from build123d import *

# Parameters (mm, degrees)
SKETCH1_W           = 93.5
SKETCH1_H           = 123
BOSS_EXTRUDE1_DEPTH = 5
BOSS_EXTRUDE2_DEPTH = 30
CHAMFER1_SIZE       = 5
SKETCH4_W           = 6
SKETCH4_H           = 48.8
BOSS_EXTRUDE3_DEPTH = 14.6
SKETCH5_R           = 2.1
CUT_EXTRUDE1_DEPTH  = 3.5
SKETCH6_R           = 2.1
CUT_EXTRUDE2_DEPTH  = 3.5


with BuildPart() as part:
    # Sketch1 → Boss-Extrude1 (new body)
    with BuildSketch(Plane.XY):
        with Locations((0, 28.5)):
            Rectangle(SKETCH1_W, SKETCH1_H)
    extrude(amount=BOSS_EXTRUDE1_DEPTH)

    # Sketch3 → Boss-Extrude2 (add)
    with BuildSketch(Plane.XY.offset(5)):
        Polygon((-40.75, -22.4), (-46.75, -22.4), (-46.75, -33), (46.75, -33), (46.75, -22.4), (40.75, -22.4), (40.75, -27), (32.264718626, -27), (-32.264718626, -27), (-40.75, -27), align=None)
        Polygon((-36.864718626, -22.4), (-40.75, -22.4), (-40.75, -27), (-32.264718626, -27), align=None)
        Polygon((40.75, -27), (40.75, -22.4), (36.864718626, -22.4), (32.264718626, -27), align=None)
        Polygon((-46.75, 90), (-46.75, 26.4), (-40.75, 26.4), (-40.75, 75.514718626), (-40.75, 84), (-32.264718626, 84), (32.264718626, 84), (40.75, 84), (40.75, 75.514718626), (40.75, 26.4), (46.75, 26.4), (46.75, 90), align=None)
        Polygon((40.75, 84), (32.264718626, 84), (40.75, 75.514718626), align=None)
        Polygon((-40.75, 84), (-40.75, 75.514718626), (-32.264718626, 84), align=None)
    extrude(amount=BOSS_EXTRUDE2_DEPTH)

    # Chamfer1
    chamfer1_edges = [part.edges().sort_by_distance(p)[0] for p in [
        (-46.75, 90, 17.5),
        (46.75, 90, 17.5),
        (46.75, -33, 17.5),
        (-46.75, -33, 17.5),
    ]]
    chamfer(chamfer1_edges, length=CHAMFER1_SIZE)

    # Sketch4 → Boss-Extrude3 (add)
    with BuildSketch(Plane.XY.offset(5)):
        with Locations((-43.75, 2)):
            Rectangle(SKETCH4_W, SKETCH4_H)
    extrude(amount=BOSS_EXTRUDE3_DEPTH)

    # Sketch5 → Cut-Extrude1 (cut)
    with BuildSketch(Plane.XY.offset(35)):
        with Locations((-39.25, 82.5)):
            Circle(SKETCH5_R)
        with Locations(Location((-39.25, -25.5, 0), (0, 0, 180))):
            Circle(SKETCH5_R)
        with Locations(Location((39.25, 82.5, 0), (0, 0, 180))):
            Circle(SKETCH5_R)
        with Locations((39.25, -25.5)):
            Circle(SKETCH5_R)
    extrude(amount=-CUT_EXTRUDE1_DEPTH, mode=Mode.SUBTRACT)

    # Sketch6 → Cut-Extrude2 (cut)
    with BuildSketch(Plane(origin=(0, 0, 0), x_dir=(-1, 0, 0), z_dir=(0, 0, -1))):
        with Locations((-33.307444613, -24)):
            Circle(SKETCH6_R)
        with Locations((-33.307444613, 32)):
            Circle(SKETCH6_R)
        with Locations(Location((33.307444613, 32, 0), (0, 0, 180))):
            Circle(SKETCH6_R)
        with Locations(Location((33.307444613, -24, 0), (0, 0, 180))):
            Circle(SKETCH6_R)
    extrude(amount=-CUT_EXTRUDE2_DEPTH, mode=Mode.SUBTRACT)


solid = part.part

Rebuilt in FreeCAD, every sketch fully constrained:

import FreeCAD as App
import Part
import Sketcher

V = App.Vector
Q = App.Units.Quantity


def edges_at(feature, points):
    """Names of the edges that pass closest to the given points."""
    edges = feature.Shape.Edges
    near = lambda p: min(range(len(edges)), key=lambda i: edges[i].distToShape(Part.Vertex(*p))[0])
    return sorted({f"Edge{near(p) + 1}" for p in points})


def add_polygon(sketch, points):
    """Adds a closed chain of lines whose ends are joined by coincident constraints."""
    first, n = sketch.GeometryCount, len(points)
    for a, b in zip(points, points[1:] + points[:1]):
        sketch.addGeometry(Part.LineSegment(App.Vector(*a, 0), App.Vector(*b, 0)), False)
    for i in range(n):
        sketch.addConstraint(Sketcher.Constraint("Coincident", first + i, 2, first + (i + 1) % n, 1))

doc = App.newDocument("Part")
body = doc.addObject("PartDesign::Body", "Body")

sketch1 = doc.addObject("Sketcher::SketchObject", "Sketch")
body.addObject(sketch1)
sketch1.AttachmentSupport = (doc.XY_Plane, [""])
sketch1.MapMode = "FlatFace"
add_polygon(sketch1, [(-47, 90), (-47, -33), (47, -33), (47, 90)])
sketch1.addConstraint(Sketcher.Constraint("Vertical", 0))
sketch1.addConstraint(Sketcher.Constraint("Horizontal", 1))
sketch1.addConstraint(Sketcher.Constraint("Vertical", 2))
sketch1.addConstraint(Sketcher.Constraint("Horizontal", 3))
sketch1.addConstraint(Sketcher.Constraint("DistanceY", 0, 2, 0, 1, Q("123 mm")))
sketch1.addConstraint(Sketcher.Constraint("DistanceX", 1, 1, 1, 2, Q("93.5 mm")))
sketch1.addConstraint(Sketcher.Constraint("DistanceY", 0, 2, -1, 1, Q("33 mm")))
sketch1.addConstraint(Sketcher.Constraint("DistanceX", 0, 2, -1, 1, Q("46.75 mm")))
pad1 = doc.addObject("PartDesign::Pad", "Pad")
body.addObject(pad1)
pad1.Profile = sketch1
pad1.Length = 5

sketch2 = doc.addObject("Sketcher::SketchObject", "Sketch001")
body.addObject(sketch2)
sketch2.AttachmentSupport = (doc.XY_Plane, [""])
sketch2.MapMode = "FlatFace"
sketch2.AttachmentOffset = App.Placement(V(0, 0, 5), App.Rotation())
add_polygon(sketch2, [(-47, -22), (-47, -33), (47, -33), (47, -22), (37, -22), (32, -27), (-32, -27), (-37, -22)])
add_polygon(sketch2, [(-47, 90), (-47, 26), (-41, 26), (-41, 76), (-32, 84), (32, 84), (41, 76), (41, 26), (47, 26), (47, 90)])
sketch2.addConstraint(Sketcher.Constraint("Vertical", 0))
sketch2.addConstraint(Sketcher.Constraint("Horizontal", 1))
sketch2.addConstraint(Sketcher.Constraint("Vertical", 2))
sketch2.addConstraint(Sketcher.Constraint("Horizontal", 3))
sketch2.addConstraint(Sketcher.Constraint("Horizontal", 5))
sketch2.addConstraint(Sketcher.Constraint("Horizontal", 7))
sketch2.addConstraint(Sketcher.Constraint("Vertical", 8))
sketch2.addConstraint(Sketcher.Constraint("Horizontal", 9))
sketch2.addConstraint(Sketcher.Constraint("Vertical", 10))
sketch2.addConstraint(Sketcher.Constraint("Horizontal", 12))
sketch2.addConstraint(Sketcher.Constraint("Vertical", 14))
sketch2.addConstraint(Sketcher.Constraint("Horizontal", 15))
sketch2.addConstraint(Sketcher.Constraint("Vertical", 16))
sketch2.addConstraint(Sketcher.Constraint("Horizontal", 17))
sketch2.addConstraint(Sketcher.Constraint("Symmetric", 3, 2, 6, 2, -2))
sketch2.addConstraint(Sketcher.Constraint("Symmetric", 10, 2, 13, 2, -2))
sketch2.addConstraint(Sketcher.Constraint("Symmetric", 8, 2, 15, 2, -2))
sketch2.addConstraint(Sketcher.Constraint("Perpendicular", 4, 6))
sketch2.addConstraint(Sketcher.Constraint("Perpendicular", 6, 11))
sketch2.addConstraint(Sketcher.Constraint("Perpendicular", 11, 13))
sketch2.addConstraint(Sketcher.Constraint("Vertical", 7, 2, 8, 2))
sketch2.addConstraint(Sketcher.Constraint("Vertical", 5, 2, 11, 2))
sketch2.addConstraint(Sketcher.Constraint("Vertical", 4, 2, 12, 2))
sketch2.addConstraint(Sketcher.Constraint("Vertical", 2, 2, 15, 2))
sketch2.addConstraint(Sketcher.Constraint("DistanceX", 9, 1, 9, 2, Q("6 mm")))
sketch2.addConstraint(Sketcher.Constraint("Distance", 11, Q("12 mm")))
sketch2.addConstraint(Sketcher.Constraint("DistanceX", 1, 1, 1, 2, Q("93.5 mm")))
sketch2.addConstraint(Sketcher.Constraint("DistanceY", 0, 2, 0, 1, Q("10.6 mm")))
sketch2.addConstraint(Sketcher.Constraint("DistanceY", 8, 2, 8, 1, Q("63.6 mm")))
sketch2.addConstraint(Sketcher.Constraint("DistanceY", 0, 2, -1, 1, Q("33 mm")))
sketch2.addConstraint(Sketcher.Constraint("DistanceY", 4, 2, -1, 1, Q("27 mm")))
sketch2.addConstraint(Sketcher.Constraint("DistanceY", -1, 1, 11, 2, Q("84 mm")))
sketch2.addConstraint(Sketcher.Constraint("DistanceY", -1, 1, 16, 2, Q("90 mm")))
pad2 = doc.addObject("PartDesign::Pad", "Pad001")
body.addObject(pad2)
pad2.Profile = sketch2
pad2.Length = 30
doc.recompute()

chamfer = doc.addObject("PartDesign::Chamfer", "Chamfer")
body.addObject(chamfer)
chamfer.Base = (pad2, edges_at(pad2, [
    (-46.75, 90, 17.5),
    (46.75, 90, 17.5),
    (46.75, -33, 17.5),
    (-46.75, -33, 17.5),
]))
chamfer.Size = 5

sketch3 = doc.addObject("Sketcher::SketchObject", "Sketch002")
body.addObject(sketch3)
sketch3.AttachmentSupport = (doc.XY_Plane, [""])
sketch3.MapMode = "FlatFace"
sketch3.AttachmentOffset = App.Placement(V(0, 0, 5), App.Rotation())
add_polygon(sketch3, [(-47, 26), (-47, -22), (-41, -22), (-41, 26)])
sketch3.addConstraint(Sketcher.Constraint("Vertical", 0))
sketch3.addConstraint(Sketcher.Constraint("Horizontal", 1))
sketch3.addConstraint(Sketcher.Constraint("Vertical", 2))
sketch3.addConstraint(Sketcher.Constraint("Horizontal", 3))
sketch3.addConstraint(Sketcher.Constraint("DistanceX", 1, 1, 1, 2, Q("6 mm")))
sketch3.addConstraint(Sketcher.Constraint("DistanceY", 0, 2, 0, 1, Q("48.8 mm")))
sketch3.addConstraint(Sketcher.Constraint("DistanceY", 0, 2, -1, 1, Q("22.4 mm")))
sketch3.addConstraint(Sketcher.Constraint("DistanceX", 0, 2, -1, 1, Q("46.75 mm")))
pad3 = doc.addObject("PartDesign::Pad", "Pad002")
body.addObject(pad3)
pad3.Profile = sketch3
pad3.Length = 14.6

sketch4 = doc.addObject("Sketcher::SketchObject", "Sketch003")
body.addObject(sketch4)
sketch4.AttachmentSupport = (doc.XY_Plane, [""])
sketch4.MapMode = "FlatFace"
sketch4.AttachmentOffset = App.Placement(V(0, 0, 35), App.Rotation())
sketch4.addGeometry(Part.Circle(V(-39.2, 82.5, 0), V(0, 0, 1), 2.1), False)
sketch4.addGeometry(Part.Circle(V(-39.2, -25.5, 0), V(0, 0, 1), 2.1), False)
sketch4.addGeometry(Part.Circle(V(39.2, 82.5, 0), V(0, 0, 1), 2.1), False)
sketch4.addGeometry(Part.Circle(V(39.2, -25.5, 0), V(0, 0, 1), 2.1), False)
sketch4.addConstraint(Sketcher.Constraint("Equal", 0, 1))
sketch4.addConstraint(Sketcher.Constraint("Equal", 1, 2))
sketch4.addConstraint(Sketcher.Constraint("Equal", 2, 3))
sketch4.addConstraint(Sketcher.Constraint("Symmetric", 0, 3, 2, 3, -2))
sketch4.addConstraint(Sketcher.Constraint("Symmetric", 1, 3, 3, 3, -2))
sketch4.addConstraint(Sketcher.Constraint("Vertical", 0, 3, 1, 3))
sketch4.addConstraint(Sketcher.Constraint("Diameter", 0, Q("4.2 mm")))
sketch4.addConstraint(Sketcher.Constraint("DistanceY", 1, 3, 0, 3, Q("108 mm")))
sketch4.addConstraint(Sketcher.Constraint("DistanceY", -1, 1, 0, 3, Q("82.5 mm")))
sketch4.addConstraint(Sketcher.Constraint("DistanceX", 0, 3, 2, 3, Q("78.5 mm")))
pocket1 = doc.addObject("PartDesign::Pocket", "Pocket")
body.addObject(pocket1)
pocket1.Profile = sketch4
pocket1.Length = 3.5

sketch5 = doc.addObject("Sketcher::SketchObject", "Sketch004")
body.addObject(sketch5)
sketch5.AttachmentSupport = (doc.XY_Plane, [""])
sketch5.MapMode = "FlatFace"
sketch5.addGeometry(Part.Circle(V(33.3, -24, 0), V(0, 0, 1), 2.1), False)
sketch5.addGeometry(Part.Circle(V(33.3, 32, 0), V(0, 0, 1), 2.1), False)
sketch5.addGeometry(Part.Circle(V(-33.3, 32, 0), V(0, 0, 1), 2.1), False)
sketch5.addGeometry(Part.Circle(V(-33.3, -24, 0), V(0, 0, 1), 2.1), False)
sketch5.addConstraint(Sketcher.Constraint("Equal", 0, 1))
sketch5.addConstraint(Sketcher.Constraint("Equal", 1, 2))
sketch5.addConstraint(Sketcher.Constraint("Equal", 2, 3))
sketch5.addConstraint(Sketcher.Constraint("Symmetric", 1, 3, 2, 3, -2))
sketch5.addConstraint(Sketcher.Constraint("Symmetric", 0, 3, 3, 3, -2))
sketch5.addConstraint(Sketcher.Constraint("Vertical", 0, 3, 1, 3))
sketch5.addConstraint(Sketcher.Constraint("Diameter", 0, Q("4.2 mm")))
sketch5.addConstraint(Sketcher.Constraint("DistanceY", 0, 3, -1, 1, Q("24 mm")))
sketch5.addConstraint(Sketcher.Constraint("DistanceY", -1, 1, 1, 3, Q("32 mm")))
sketch5.addConstraint(Sketcher.Constraint("DistanceX", 2, 3, 1, 3, Q("66.614889 mm")))
pocket2 = doc.addObject("PartDesign::Pocket", "Pocket001")
body.addObject(pocket2)
pocket2.Profile = sketch5
pocket2.Length = 3.5
pocket2.Reversed = True

doc.recompute()
